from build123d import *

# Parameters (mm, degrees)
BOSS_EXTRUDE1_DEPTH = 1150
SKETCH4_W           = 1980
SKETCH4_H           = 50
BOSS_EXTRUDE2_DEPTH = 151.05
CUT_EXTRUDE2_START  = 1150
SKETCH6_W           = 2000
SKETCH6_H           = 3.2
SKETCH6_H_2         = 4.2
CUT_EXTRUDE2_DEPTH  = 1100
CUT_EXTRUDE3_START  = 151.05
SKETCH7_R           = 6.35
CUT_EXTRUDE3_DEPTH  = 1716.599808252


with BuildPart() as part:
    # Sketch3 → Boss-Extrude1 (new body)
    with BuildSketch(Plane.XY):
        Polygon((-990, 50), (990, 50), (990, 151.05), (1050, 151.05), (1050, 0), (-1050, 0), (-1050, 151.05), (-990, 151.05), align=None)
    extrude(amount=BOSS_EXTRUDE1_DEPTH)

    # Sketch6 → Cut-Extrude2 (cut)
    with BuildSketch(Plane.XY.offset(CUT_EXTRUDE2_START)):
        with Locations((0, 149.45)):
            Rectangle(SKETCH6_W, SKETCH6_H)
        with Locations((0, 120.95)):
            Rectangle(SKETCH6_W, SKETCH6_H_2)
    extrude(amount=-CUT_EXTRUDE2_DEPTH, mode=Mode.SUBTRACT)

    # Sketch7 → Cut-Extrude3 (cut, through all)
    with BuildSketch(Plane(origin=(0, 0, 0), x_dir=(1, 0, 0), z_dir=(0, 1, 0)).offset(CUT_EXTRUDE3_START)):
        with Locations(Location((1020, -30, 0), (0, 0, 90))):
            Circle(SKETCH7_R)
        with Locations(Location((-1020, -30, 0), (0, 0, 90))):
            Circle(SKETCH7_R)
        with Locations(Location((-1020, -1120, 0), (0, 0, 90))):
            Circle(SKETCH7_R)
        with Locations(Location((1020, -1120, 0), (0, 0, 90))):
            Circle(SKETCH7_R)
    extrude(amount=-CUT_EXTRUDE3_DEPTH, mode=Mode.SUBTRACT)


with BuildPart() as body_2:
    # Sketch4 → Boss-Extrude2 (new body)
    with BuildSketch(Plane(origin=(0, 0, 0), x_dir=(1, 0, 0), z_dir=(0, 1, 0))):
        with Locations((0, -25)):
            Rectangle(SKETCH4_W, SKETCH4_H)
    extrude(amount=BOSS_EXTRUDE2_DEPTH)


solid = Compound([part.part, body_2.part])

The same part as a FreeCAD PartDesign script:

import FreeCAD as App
import Part
import Sketcher

V = App.Vector

doc = App.newDocument("Part")
body = doc.addObject("PartDesign::Body", "Body")

# Sketch on XY plane
sketch1 = doc.addObject("Sketcher::SketchObject", "Sketch")
body.addObject(sketch1)
sketch1.AttachmentSupport = (doc.XY_Plane, [""])
sketch1.MapMode = "FlatFace"
sketch1.addGeometry(Part.LineSegment(V(990, 50, 0), V(-990, 50, 0)), False)
sketch1.addGeometry(Part.LineSegment(V(-990, 50, 0), V(-990, 151, 0)), False)
sketch1.addGeometry(Part.LineSegment(V(-990, 151, 0), V(-1050, 151, 0)), False)
sketch1.addGeometry(Part.LineSegment(V(-1050, 151, 0), V(-1050, 0, 0)), False)
sketch1.addGeometry(Part.LineSegment(V(-1050, 0, 0), V(1050, 0, 0)), False)
sketch1.addGeometry(Part.LineSegment(V(1050, 0, 0), V(1050, 151, 0)), False)
sketch1.addGeometry(Part.LineSegment(V(1050, 151, 0), V(990, 151, 0)), False)
sketch1.addGeometry(Part.LineSegment(V(990, 151, 0), V(990, 50, 0)), False)
sketch1.addConstraint(Sketcher.Constraint("Coincident", 0, 2, 1, 1))
sketch1.addConstraint(Sketcher.Constraint("Coincident", 1, 2, 2, 1))
sketch1.addConstraint(Sketcher.Constraint("Coincident", 2, 2, 3, 1))
sketch1.addConstraint(Sketcher.Constraint("Coincident", 3, 2, 4, 1))
sketch1.addConstraint(Sketcher.Constraint("Coincident", 4, 2, 5, 1))
sketch1.addConstraint(Sketcher.Constraint("Coincident", 5, 2, 6, 1))
sketch1.addConstraint(Sketcher.Constraint("Coincident", 6, 2, 7, 1))
sketch1.addConstraint(Sketcher.Constraint("Coincident", 7, 2, 0, 1))
sketch1.addConstraint(Sketcher.Constraint("Horizontal", 0))
sketch1.addConstraint(Sketcher.Constraint("Vertical", 1))
sketch1.addConstraint(Sketcher.Constraint("Horizontal", 2))
sketch1.addConstraint(Sketcher.Constraint("Vertical", 3))
sketch1.addConstraint(Sketcher.Constraint("Horizontal", 4))
sketch1.addConstraint(Sketcher.Constraint("Vertical", 5))
sketch1.addConstraint(Sketcher.Constraint("Horizontal", 6))
sketch1.addConstraint(Sketcher.Constraint("Vertical", 7))
sketch1.addConstraint(Sketcher.Constraint("Symmetric", 3, 2, 4, 2, -1, 1))
sketch1.addConstraint(Sketcher.Constraint("Symmetric", 1, 2, 6, 2, -2))
sketch1.addConstraint(Sketcher.Constraint("DistanceX", 0, 2, 0, 1, 1980.0))
sketch1.addConstraint(Sketcher.Constraint("DistanceX", 2, 2, 2, 1, 60.0))
sketch1.addConstraint(Sketcher.Constraint("DistanceY", -1, 1, 0, 2, 50.0))
sketch1.addConstraint(Sketcher.Constraint("DistanceY", 1, 1, 1, 2, 101.05))
pad1 = doc.addObject("PartDesign::Pad", "Pad")
body.addObject(pad1)
pad1.Profile = sketch1
pad1.Length = 1150

# Sketch on XY plane
sketch2 = doc.addObject("Sketcher::SketchObject", "Sketch001")
body.addObject(sketch2)
sketch2.AttachmentSupport = (doc.XY_Plane, [""])
sketch2.MapMode = "FlatFace"
sketch2.AttachmentOffset = App.Placement(V(0, 0, 1150), App.Rotation())
sketch2.addGeometry(Part.LineSegment(V(-1000, 151.1, 0), V(-1000, 147.8, 0)), False)
sketch2.addGeometry(Part.LineSegment(V(-1000, 147.8, 0), V(1000, 147.8, 0)), False)
sketch2.addGeometry(Part.LineSegment(V(1000, 147.8, 0), V(1000, 151.1, 0)), False)
sketch2.addGeometry(Part.LineSegment(V(1000, 151.1, 0), V(-1000, 151.1, 0)), False)
sketch2.addGeometry(Part.LineSegment(V(-1000, 123, 0), V(-1000, 118.8, 0)), False)
sketch2.addGeometry(Part.LineSegment(V(-1000, 118.8, 0), V(1000, 118.8, 0)), False)
sketch2.addGeometry(Part.LineSegment(V(1000, 118.8, 0), V(1000, 123, 0)), False)
sketch2.addGeometry(Part.LineSegment(V(1000, 123, 0), V(-1000, 123, 0)), False)
sketch2.addConstraint(Sketcher.Constraint("Coincident", 0, 2, 1, 1))
sketch2.addConstraint(Sketcher.Constraint("Coincident", 1, 2, 2, 1))
sketch2.addConstraint(Sketcher.Constraint("Coincident", 2, 2, 3, 1))
sketch2.addConstraint(Sketcher.Constraint("Coincident", 3, 2, 0, 1))
sketch2.addConstraint(Sketcher.Constraint("Coincident", 4, 2, 5, 1))
sketch2.addConstraint(Sketcher.Constraint("Coincident", 5, 2, 6, 1))
sketch2.addConstraint(Sketcher.Constraint("Coincident", 6, 2, 7, 1))
sketch2.addConstraint(Sketcher.Constraint("Coincident", 7, 2, 4, 1))
sketch2.addConstraint(Sketcher.Constraint("Vertical", 0))
sketch2.addConstraint(Sketcher.Constraint("Horizontal", 1))
sketch2.addConstraint(Sketcher.Constraint("Vertical", 2))
sketch2.addConstraint(Sketcher.Constraint("Horizontal", 3))
sketch2.addConstraint(Sketcher.Constraint("Vertical", 4))
sketch2.addConstraint(Sketcher.Constraint("Horizontal", 5))
sketch2.addConstraint(Sketcher.Constraint("Vertical", 6))
sketch2.addConstraint(Sketcher.Constraint("Horizontal", 7))
sketch2.addConstraint(Sketcher.Constraint("Vertical", 3, 2, 4, 2))
sketch2.addConstraint(Sketcher.Constraint("Vertical", 2, 2, 5, 2))
sketch2.addConstraint(Sketcher.Constraint("DistanceX", 1, 1, 1, 2, 2000.0))
sketch2.addConstraint(Sketcher.Constraint("DistanceY", 0, 2, 0, 1, 3.2))
sketch2.addConstraint(Sketcher.Constraint("DistanceY", 4, 2, 4, 1, 4.2))
sketch2.addConstraint(Sketcher.Constraint("DistanceX", 0, 2, -1, 1, 1000.0))
sketch2.addConstraint(Sketcher.Constraint("DistanceY", 4, 2, 0, 2, 29.0))
sketch2.addConstraint(Sketcher.Constraint("DistanceY", -1, 1, 0, 2, 147.85))
pocket1 = doc.addObject("PartDesign::Pocket", "Pocket")
body.addObject(pocket1)
pocket1.Profile = sketch2
pocket1.Length = 1100

# Sketch on XZ plane
sketch3 = doc.addObject("Sketcher::SketchObject", "Sketch002")
body.addObject(sketch3)
sketch3.AttachmentSupport = (doc.XZ_Plane, [""])
sketch3.MapMode = "FlatFace"
sketch3.AttachmentOffset = App.Placement(V(0, 0, -151.05), App.Rotation())
sketch3.addGeometry(Part.Circle(V(1020, 30, 0), V(0, 0, 1), 6), False)
sketch3.addGeometry(Part.Circle(V(-1020, 30, 0), V(0, 0, 1), 6), False)
sketch3.addGeometry(Part.Circle(V(-1020, 1120, 0), V(0, 0, 1), 6), False)
sketch3.addGeometry(Part.Circle(V(1020, 1120, 0), V(0, 0, 1), 6), False)
sketch3.addConstraint(Sketcher.Constraint("Equal", 0, 1))
sketch3.addConstraint(Sketcher.Constraint("Equal", 1, 2))
sketch3.addConstraint(Sketcher.Constraint("Equal", 2, 3))
sketch3.addConstraint(Sketcher.Constraint("Symmetric", 0, 3, 1, 3, -2))
sketch3.addConstraint(Sketcher.Constraint("Symmetric", 2, 3, 3, 3, -2))
sketch3.addConstraint(Sketcher.Constraint("Vertical", 1, 3, 2, 3))
sketch3.addConstraint(Sketcher.Constraint("Diameter", 0, 12.7))
sketch3.addConstraint(Sketcher.Constraint("DistanceX", -1, 1, 0, 3, 1020.0))
sketch3.addConstraint(Sketcher.Constraint("DistanceY", -1, 1, 0, 3, 30.0))
sketch3.addConstraint(Sketcher.Constraint("DistanceY", -1, 1, 2, 3, 1120.0))
pocket2 = doc.addObject("PartDesign::Pocket", "Pocket001")
body.addObject(pocket2)
pocket2.Profile = sketch3
pocket2.Type = "ThroughAll"
pocket2.Reversed = True
body2 = doc.addObject("PartDesign::Body", "Body001")

# Sketch on XZ plane
sketch4 = doc.addObject("Sketcher::SketchObject", "Sketch003")
body2.addObject(sketch4)
sketch4.AttachmentSupport = (doc.getObject("XZ_Plane001"), [""])
sketch4.MapMode = "FlatFace"
sketch4.addGeometry(Part.LineSegment(V(-990, 0, 0), V(-990, 50, 0)), False)
sketch4.addGeometry(Part.LineSegment(V(-990, 50, 0), V(990, 50, 0)), False)
sketch4.addGeometry(Part.LineSegment(V(990, 50, 0), V(990, 0, 0)), False)
sketch4.addGeometry(Part.LineSegment(V(990, 0, 0), V(-990, 0, 0)), False)
sketch4.addConstraint(Sketcher.Constraint("Coincident", 0, 2, 1, 1))
sketch4.addConstraint(Sketcher.Constraint("Coincident", 1, 2, 2, 1))
sketch4.addConstraint(Sketcher.Constraint("Coincident", 2, 2, 3, 1))
sketch4.addConstraint(Sketcher.Constraint("Coincident", 3, 2, 0, 1))
sketch4.addConstraint(Sketcher.Constraint("Vertical", 0))
sketch4.addConstraint(Sketcher.Constraint("Horizontal", 1))
sketch4.addConstraint(Sketcher.Constraint("Vertical", 2))
sketch4.addConstraint(Sketcher.Constraint("Horizontal", 3))
sketch4.addConstraint(Sketcher.Constraint("Symmetric", 2, 2, 3, 2, -1, 1))
sketch4.addConstraint(Sketcher.Constraint("DistanceX", 1, 1, 1, 2, 1980.0))
sketch4.addConstraint(Sketcher.Constraint("DistanceY", 0, 1, 0, 2, 50.0))
pad2 = doc.addObject("PartDesign::Pad", "Pad001")
body2.addObject(pad2)
pad2.Profile = sketch4
pad2.Length = 151.05
pad2.Reversed = True

doc.recompute()
